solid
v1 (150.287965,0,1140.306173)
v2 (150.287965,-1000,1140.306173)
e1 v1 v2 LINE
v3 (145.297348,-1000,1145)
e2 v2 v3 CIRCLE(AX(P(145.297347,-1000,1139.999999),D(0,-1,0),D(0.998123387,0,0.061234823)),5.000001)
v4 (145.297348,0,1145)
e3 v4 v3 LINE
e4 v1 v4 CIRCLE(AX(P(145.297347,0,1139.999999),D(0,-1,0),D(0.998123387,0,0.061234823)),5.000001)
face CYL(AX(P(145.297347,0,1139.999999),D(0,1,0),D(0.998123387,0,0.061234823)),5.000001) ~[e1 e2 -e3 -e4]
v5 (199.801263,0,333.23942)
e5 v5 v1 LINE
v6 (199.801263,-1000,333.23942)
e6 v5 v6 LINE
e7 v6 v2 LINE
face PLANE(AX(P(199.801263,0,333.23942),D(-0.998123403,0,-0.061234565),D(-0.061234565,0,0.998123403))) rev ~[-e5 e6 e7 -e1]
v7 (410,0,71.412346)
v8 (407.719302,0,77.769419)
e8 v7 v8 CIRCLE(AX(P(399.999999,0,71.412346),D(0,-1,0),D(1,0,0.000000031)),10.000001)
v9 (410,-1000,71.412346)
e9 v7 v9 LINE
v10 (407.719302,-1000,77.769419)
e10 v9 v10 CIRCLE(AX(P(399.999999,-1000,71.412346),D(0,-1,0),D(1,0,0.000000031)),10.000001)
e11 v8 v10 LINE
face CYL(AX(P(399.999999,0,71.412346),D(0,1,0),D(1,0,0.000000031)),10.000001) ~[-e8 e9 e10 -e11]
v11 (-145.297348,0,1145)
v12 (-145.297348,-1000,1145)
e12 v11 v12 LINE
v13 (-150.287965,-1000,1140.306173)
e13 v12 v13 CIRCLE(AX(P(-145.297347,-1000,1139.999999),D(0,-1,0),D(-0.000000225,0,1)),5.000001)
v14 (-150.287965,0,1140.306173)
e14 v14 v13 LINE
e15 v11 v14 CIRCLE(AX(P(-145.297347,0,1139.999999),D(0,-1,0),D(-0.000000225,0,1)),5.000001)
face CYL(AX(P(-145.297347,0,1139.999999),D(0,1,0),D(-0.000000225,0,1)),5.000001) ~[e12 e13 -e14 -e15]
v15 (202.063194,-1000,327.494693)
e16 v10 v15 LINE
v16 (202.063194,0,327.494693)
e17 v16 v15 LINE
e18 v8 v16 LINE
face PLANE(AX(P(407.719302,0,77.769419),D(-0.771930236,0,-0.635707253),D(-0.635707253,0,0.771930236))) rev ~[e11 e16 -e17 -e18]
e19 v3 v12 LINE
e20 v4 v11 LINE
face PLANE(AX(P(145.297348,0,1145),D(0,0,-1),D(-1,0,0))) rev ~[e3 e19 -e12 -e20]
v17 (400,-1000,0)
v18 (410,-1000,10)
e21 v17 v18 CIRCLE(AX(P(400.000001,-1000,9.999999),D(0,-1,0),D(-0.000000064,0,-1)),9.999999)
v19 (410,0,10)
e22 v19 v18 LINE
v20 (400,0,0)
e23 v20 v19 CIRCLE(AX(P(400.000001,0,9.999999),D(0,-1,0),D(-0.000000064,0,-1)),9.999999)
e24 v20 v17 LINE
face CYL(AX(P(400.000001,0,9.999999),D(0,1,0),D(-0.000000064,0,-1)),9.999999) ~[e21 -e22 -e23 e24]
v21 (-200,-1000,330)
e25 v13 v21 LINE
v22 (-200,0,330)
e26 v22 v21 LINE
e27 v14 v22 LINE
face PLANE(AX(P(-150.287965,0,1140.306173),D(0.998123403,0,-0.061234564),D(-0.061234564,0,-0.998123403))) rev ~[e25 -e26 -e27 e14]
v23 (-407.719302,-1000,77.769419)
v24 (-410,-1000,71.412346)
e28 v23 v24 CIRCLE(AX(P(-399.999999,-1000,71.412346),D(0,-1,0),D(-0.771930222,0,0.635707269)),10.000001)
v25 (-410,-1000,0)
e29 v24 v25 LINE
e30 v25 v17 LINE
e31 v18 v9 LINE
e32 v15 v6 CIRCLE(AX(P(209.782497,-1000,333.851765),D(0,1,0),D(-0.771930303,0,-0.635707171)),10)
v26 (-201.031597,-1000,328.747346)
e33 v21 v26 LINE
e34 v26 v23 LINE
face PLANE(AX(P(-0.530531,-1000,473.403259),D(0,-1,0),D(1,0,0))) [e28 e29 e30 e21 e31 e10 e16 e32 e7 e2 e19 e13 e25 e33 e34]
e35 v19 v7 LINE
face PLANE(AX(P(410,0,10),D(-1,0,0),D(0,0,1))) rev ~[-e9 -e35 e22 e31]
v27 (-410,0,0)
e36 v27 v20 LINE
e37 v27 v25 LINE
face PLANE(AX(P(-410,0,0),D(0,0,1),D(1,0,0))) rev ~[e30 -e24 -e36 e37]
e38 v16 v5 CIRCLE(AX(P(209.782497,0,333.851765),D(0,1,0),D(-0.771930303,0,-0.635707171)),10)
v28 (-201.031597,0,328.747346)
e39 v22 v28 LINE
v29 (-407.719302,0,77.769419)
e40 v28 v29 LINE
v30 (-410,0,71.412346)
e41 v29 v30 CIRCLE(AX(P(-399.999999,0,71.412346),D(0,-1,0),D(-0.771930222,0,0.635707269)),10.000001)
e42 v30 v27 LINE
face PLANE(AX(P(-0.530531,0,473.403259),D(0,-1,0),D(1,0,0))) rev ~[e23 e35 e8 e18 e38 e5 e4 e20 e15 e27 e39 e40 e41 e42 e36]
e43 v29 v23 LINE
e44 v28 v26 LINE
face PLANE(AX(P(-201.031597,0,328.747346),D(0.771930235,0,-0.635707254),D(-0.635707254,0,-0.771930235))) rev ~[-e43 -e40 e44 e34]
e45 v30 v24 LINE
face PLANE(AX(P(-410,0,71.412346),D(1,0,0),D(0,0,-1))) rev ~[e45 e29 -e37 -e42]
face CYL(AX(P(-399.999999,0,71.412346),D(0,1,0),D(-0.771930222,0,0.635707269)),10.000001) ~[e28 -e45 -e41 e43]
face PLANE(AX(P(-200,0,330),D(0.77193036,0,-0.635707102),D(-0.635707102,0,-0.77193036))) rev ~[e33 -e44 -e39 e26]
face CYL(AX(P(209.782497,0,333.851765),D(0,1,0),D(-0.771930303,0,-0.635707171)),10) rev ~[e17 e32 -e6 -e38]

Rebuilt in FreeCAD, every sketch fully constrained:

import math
import FreeCAD as App
import Part
import Sketcher
Q = App.Units.Quantity

doc = App.newDocument("Part")
params = doc.addObject("Spreadsheet::Sheet", "Params")
for row, (alias, value) in enumerate([
    ("sketch1_radius", "9.999999 mm"),
    ("sketch1_radius2", "5.000001 mm"),
    ("sketch1_width", "810 mm"),
    ("pad1_length", "1000 mm"),
], start=1):
    params.set(f"A{row}", alias)
    params.set(f"B{row}", "=" + value)
    params.setAlias(f"B{row}", alias)

body = doc.addObject("PartDesign::Body", "Body")

sketch1 = body.newObject("Sketcher::SketchObject", "Sketch")
sketch1.AttachmentSupport = (doc.getObject("XZ_Plane"), [""])
sketch1.MapMode = "FlatFace"
sketch1.addGeometry(Part.LineSegment(App.Vector(-410, 0, 0), App.Vector(400, 0, 0)), False)
sketch1.addGeometry(Part.ArcOfCircle(Part.Circle(App.Vector(400, 10, 0), App.Vector(0, 0, 1), 10), math.radians(-90), math.radians(0)), False)
sketch1.addGeometry(Part.LineSegment(App.Vector(410, 10, 0), App.Vector(410, 71.4, 0)), False)
sketch1.addGeometry(Part.ArcOfCircle(Part.Circle(App.Vector(400, 71.4, 0), App.Vector(0, 0, 1), 10), math.radians(0), math.radians(39)), False)
sketch1.addGeometry(Part.LineSegment(App.Vector(407.7, 77.8, 0), App.Vector(202.1, 327.5, 0)), False)
sketch1.addGeometry(Part.ArcOfCircle(Part.Circle(App.Vector(209.8, 333.9, 0), App.Vector(0, 0, 1), 10), math.radians(-176), math.radians(-141)), False)
sketch1.addGeometry(Part.LineSegment(App.Vector(199.8, 333.2, 0), App.Vector(150.3, 1140.3, 0)), False)
sketch1.addGeometry(Part.ArcOfCircle(Part.Circle(App.Vector(145.3, 1140, 0), App.Vector(0, 0, 1), 5), math.radians(4), math.radians(90)), False)
sketch1.addGeometry(Part.LineSegment(App.Vector(145.3, 1145, 0), App.Vector(-145.3, 1145, 0)), False)
sketch1.addGeometry(Part.ArcOfCircle(Part.Circle(App.Vector(-145.3, 1140, 0), App.Vector(0, 0, 1), 5), math.radians(90), math.radians(176)), False)
sketch1.addGeometry(Part.LineSegment(App.Vector(-150.3, 1140.3, 0), App.Vector(-200, 330, 0)), False)
sketch1.addGeometry(Part.LineSegment(App.Vector(-200, 330, 0), App.Vector(-201, 328.7, 0)), False)
sketch1.addGeometry(Part.LineSegment(App.Vector(-201, 328.7, 0), App.Vector(-407.7, 77.8, 0)), False)
sketch1.addGeometry(Part.ArcOfCircle(Part.Circle(App.Vector(-400, 71.4, 0), App.Vector(0, 0, 1), 10), math.radians(141), math.radians(180)), False)
sketch1.addGeometry(Part.LineSegment(App.Vector(-410, 71.4, 0), App.Vector(-410, 0, 0)), False)
sketch1.addConstraint(Sketcher.Constraint("Tangent", 0, 2, 1, 1))
sketch1.addConstraint(Sketcher.Constraint("Tangent", 1, 2, 2, 1))
sketch1.addConstraint(Sketcher.Constraint("Tangent", 2, 2, 3, 1))
sketch1.addConstraint(Sketcher.Constraint("Tangent", 3, 2, 4, 1))
sketch1.addConstraint(Sketcher.Constraint("Tangent", 4, 2, 5, 2))
sketch1.addConstraint(Sketcher.Constraint("Tangent", 5, 1, 6, 1))
sketch1.addConstraint(Sketcher.Constraint("Tangent", 6, 2, 7, 1))
sketch1.addConstraint(Sketcher.Constraint("Tangent", 7, 2, 8, 1))
sketch1.addConstraint(Sketcher.Constraint("Tangent", 8, 2, 9, 1))
sketch1.addConstraint(Sketcher.Constraint("Tangent", 9, 2, 10, 1))
sketch1.addConstraint(Sketcher.Constraint("Coincident", 10, 2, 11, 1))
sketch1.addConstraint(Sketcher.Constraint("Coincident", 11, 2, 12, 1))
sketch1.addConstraint(Sketcher.Constraint("Tangent", 12, 2, 13, 1))
sketch1.addConstraint(Sketcher.Constraint("Tangent", 13, 2, 14, 1))
sketch1.addConstraint(Sketcher.Constraint("Coincident", 14, 2, 0, 1))
sketch1.addConstraint(Sketcher.Constraint("Horizontal", 0))
sketch1.addConstraint(Sketcher.Constraint("Vertical", 2))
sketch1.addConstraint(Sketcher.Constraint("Horizontal", 8))
sketch1.addConstraint(Sketcher.Constraint("Vertical", 14))
sketch1.addConstraint(Sketcher.Constraint("Equal", 1, 3))
sketch1.addConstraint(Sketcher.Constraint("Equal", 3, 5))
sketch1.addConstraint(Sketcher.Constraint("Equal", 7, 9))
sketch1.addConstraint(Sketcher.Constraint("Equal", 5, 13))
sketch1.addConstraint(Sketcher.Constraint("Symmetric", 3, 3, 13, 3, -2))
sketch1.addConstraint(Sketcher.Constraint("PointOnObject", 0, 2, -1))
sketch1.addConstraint(Sketcher.Constraint("Parallel", 11, 12))
sketch1.addConstraint(Sketcher.Constraint("Horizontal", 3, 2, 12, 2))
sketch1.addConstraint(Sketcher.Constraint("Radius", 1, Q("9.999999 mm")))
sketch1.addConstraint(Sketcher.Constraint("Radius", 7, Q("5.000001 mm")))
sketch1.addConstraint(Sketcher.Constraint("DistanceX", 0, 1, 0, 2, Q("810 mm")))
sketch1.addConstraint(Sketcher.Constraint("DistanceY", -1, 1, 7, 3, Q("1139.999999 mm")))
sketch1.addConstraint(Sketcher.Constraint("DistanceX", 10, 2, -1, 1, Q("200 mm")))
sketch1.addConstraint(Sketcher.Constraint("DistanceY", -1, 1, 10, 2, Q("330 mm")))
sketch1.addConstraint(Sketcher.Constraint("DistanceY", 3, 2, 5, 1, Q("255.470001 mm")))
sketch1.addConstraint(Sketcher.Constraint("DistanceY", 13, 3, 11, 2, Q("257.335 mm")))
sketch1.addConstraint(Sketcher.Constraint("DistanceX", 6, 2, 5, 1, Q("49.513298 mm")))
sketch1.addConstraint(Sketcher.Constraint("Distance", 4, Q("323.507569 mm")))
sketch1.addConstraint(Sketcher.Constraint("Distance", 10, Q("811.82965 mm")))
sketch1.setExpression("Constraints[27]", "Params.sketch1_radius")
sketch1.setExpression("Constraints[28]", "Params.sketch1_radius2")
sketch1.setExpression("Constraints[29]", "Params.sketch1_width")
pad1 = body.newObject("PartDesign::Pad", "Pad")
pad1.Profile = sketch1
pad1.setExpression("Length", "Params.pad1_length")

doc.recompute()
